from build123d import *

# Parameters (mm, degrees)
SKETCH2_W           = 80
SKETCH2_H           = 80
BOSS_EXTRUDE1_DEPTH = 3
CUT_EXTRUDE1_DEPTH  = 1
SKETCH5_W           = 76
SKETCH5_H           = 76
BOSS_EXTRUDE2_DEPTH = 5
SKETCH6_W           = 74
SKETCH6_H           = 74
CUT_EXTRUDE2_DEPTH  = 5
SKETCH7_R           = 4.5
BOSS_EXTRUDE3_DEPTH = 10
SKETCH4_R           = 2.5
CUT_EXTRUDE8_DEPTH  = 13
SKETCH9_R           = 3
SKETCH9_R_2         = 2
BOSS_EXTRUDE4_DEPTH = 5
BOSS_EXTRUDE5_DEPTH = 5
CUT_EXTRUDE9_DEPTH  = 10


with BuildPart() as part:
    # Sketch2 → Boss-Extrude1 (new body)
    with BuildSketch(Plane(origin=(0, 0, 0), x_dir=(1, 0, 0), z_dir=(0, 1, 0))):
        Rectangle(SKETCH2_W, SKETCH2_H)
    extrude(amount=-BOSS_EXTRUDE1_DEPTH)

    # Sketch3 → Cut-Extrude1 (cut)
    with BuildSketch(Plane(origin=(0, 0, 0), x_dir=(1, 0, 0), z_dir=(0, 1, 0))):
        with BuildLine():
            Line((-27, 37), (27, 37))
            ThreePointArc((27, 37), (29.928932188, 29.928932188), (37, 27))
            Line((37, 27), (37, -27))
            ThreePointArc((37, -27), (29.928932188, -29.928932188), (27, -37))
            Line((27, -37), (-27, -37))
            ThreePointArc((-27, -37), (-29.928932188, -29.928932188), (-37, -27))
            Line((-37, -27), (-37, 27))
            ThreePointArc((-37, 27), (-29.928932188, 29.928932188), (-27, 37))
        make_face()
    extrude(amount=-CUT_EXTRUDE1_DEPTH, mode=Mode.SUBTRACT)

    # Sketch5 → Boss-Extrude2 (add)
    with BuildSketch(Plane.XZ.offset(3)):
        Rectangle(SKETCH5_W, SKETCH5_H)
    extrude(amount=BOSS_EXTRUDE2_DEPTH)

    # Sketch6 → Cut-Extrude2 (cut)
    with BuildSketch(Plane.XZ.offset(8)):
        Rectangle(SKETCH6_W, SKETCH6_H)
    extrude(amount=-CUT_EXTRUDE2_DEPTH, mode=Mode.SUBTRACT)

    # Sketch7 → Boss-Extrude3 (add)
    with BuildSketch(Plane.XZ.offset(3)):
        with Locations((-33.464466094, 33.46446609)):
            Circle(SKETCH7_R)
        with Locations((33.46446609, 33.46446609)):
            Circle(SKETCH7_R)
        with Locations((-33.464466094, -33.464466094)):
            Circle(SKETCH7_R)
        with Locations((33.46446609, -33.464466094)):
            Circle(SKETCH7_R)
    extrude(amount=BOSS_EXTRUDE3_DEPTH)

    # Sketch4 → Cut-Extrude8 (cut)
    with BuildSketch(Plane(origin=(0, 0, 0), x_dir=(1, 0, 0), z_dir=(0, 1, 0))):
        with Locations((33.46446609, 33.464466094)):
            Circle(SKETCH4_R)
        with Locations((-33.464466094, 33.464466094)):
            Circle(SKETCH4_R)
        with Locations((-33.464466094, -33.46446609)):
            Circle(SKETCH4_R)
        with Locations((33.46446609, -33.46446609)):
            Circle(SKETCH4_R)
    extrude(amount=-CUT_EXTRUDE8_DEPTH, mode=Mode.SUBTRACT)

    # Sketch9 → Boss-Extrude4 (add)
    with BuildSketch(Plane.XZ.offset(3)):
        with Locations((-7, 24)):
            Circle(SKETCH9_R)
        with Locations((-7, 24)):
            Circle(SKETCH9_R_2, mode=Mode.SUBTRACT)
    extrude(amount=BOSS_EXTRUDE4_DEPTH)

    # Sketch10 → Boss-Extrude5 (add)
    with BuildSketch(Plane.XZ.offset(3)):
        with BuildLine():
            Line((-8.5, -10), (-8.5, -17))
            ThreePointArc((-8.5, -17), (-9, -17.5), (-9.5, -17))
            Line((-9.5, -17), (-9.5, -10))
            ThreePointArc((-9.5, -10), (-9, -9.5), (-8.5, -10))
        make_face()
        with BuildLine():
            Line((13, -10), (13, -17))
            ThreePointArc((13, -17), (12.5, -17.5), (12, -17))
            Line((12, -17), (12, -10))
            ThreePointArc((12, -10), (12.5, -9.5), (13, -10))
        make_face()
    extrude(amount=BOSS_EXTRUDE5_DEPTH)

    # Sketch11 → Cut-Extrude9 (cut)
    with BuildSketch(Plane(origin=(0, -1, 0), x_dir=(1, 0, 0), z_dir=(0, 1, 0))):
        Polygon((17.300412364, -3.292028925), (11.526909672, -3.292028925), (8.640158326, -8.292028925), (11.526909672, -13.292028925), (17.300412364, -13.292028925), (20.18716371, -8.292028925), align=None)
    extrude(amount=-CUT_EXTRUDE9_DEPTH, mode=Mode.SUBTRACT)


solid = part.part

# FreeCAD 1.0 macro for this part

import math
import FreeCAD as App
import Part
import Sketcher
from FreeCAD import Vector
Q = App.Units.Quantity

doc = App.newDocument("Part")
body = doc.addObject("PartDesign::Body", "Body")

sketch1 = body.newObject("Sketcher::SketchObject", "Sketch")
sketch1.AttachmentSupport = (doc.getObject("XZ_Plane"), [""])
sketch1.MapMode = "FlatFace"
sketch1.addGeometry([
    Part.LineSegment(Vector(-40, -40, 0), Vector(-40, 40, 0)),
    Part.LineSegment(Vector(-40, 40, 0), Vector(40, 40, 0)),
    Part.LineSegment(Vector(40, 40, 0), Vector(40, -40, 0)),
    Part.LineSegment(Vector(40, -40, 0), Vector(-40, -40, 0)),
], False)
sketch1.addConstraint([
    Sketcher.Constraint("Coincident", 0, 2, 1, 1),
    Sketcher.Constraint("Coincident", 1, 2, 2, 1),
    Sketcher.Constraint("Coincident", 2, 2, 3, 1),
    Sketcher.Constraint("Coincident", 3, 2, 0, 1),
    Sketcher.Constraint("Vertical", 0),
    Sketcher.Constraint("Horizontal", 1),
    Sketcher.Constraint("Vertical", 2),
    Sketcher.Constraint("Horizontal", 3),
    Sketcher.Constraint("Symmetric", 0, 2, 2, 2, -1, 1),
    Sketcher.Constraint("Equal", 3, 0),
    Sketcher.Constraint("DistanceX", 1, 1, 1, 2, Q("80 mm")),
])
pad1 = body.newObject("PartDesign::Pad", "Pad")
pad1.Profile = sketch1
pad1.Length = 3

sketch2 = body.newObject("Sketcher::SketchObject", "Sketch001")
sketch2.AttachmentSupport = (doc.getObject("XZ_Plane"), [""])
sketch2.MapMode = "FlatFace"
sketch2.addGeometry([
    Part.LineSegment(Vector(27, -37, 0), Vector(-27, -37, 0)),
    Part.ArcOfCircle(Part.Circle(Vector(-37, -37, 0), Vector(0, 0, 1), 10), math.radians(0), math.radians(90)),
    Part.LineSegment(Vector(-37, -27, 0), Vector(-37, 27, 0)),
    Part.ArcOfCircle(Part.Circle(Vector(-37, 37, 0), Vector(0, 0, 1), 10), math.radians(-90), math.radians(0)),
    Part.LineSegment(Vector(-27, 37, 0), Vector(27, 37, 0)),
    Part.ArcOfCircle(Part.Circle(Vector(37, 37, 0), Vector(0, 0, 1), 10), math.radians(180), math.radians(270)),
    Part.LineSegment(Vector(37, 27, 0), Vector(37, -27, 0)),
    Part.ArcOfCircle(Part.Circle(Vector(37, -37, 0), Vector(0, 0, 1), 10), math.radians(90), math.radians(180)),
], False)
sketch2.addConstraint([
    Sketcher.Constraint("Coincident", 0, 2, 1, 1),
    Sketcher.Constraint("Coincident", 1, 2, 2, 1),
    Sketcher.Constraint("Coincident", 2, 2, 3, 1),
    Sketcher.Constraint("Coincident", 3, 2, 4, 1),
    Sketcher.Constraint("Coincident", 4, 2, 5, 1),
    Sketcher.Constraint("Coincident", 5, 2, 6, 1),
    Sketcher.Constraint("Coincident", 6, 2, 7, 1),
    Sketcher.Constraint("Coincident", 7, 2, 0, 1),
    Sketcher.Constraint("Horizontal", 0),
    Sketcher.Constraint("Vertical", 2),
    Sketcher.Constraint("Horizontal", 4),
    Sketcher.Constraint("Vertical", 6),
    Sketcher.Constraint("Equal", 1, 3),
    Sketcher.Constraint("Equal", 3, 5),
    Sketcher.Constraint("Equal", 5, 7),
    Sketcher.Constraint("Symmetric", 1, 3, 5, 3, -1, 1),
    Sketcher.Constraint("Symmetric", 3, 3, 7, 3, -1, 1),
    Sketcher.Constraint("Symmetric", 3, 3, 5, 3, -2),
    Sketcher.Constraint("Horizontal", 7, 3, 0, 2),
    Sketcher.Constraint("Horizontal", 5, 3, 3, 2),
    Sketcher.Constraint("Vertical", 3, 3, 1, 2),
    Sketcher.Constraint("Vertical", 7, 3, 5, 2),
    Sketcher.Constraint("Equal", 4, 2),
    Sketcher.Constraint("Radius", 1, Q("10 mm")),
    Sketcher.Constraint("DistanceX", 0, 2, 0, 1, Q("54 mm")),
])
pocket1 = body.newObject("PartDesign::Pocket", "Pocket")
pocket1.Profile = sketch2
pocket1.Length = 1
pocket1.Reversed = True

sketch3 = body.newObject("Sketcher::SketchObject", "Sketch002")
sketch3.AttachmentSupport = (doc.getObject("XZ_Plane"), [""])
sketch3.MapMode = "FlatFace"
sketch3.AttachmentOffset = App.Placement(Vector(0, 0, 3), App.Rotation())
sketch3.addGeometry([
    Part.LineSegment(Vector(-38, 38, 0), Vector(-38, -38, 0)),
    Part.LineSegment(Vector(-38, -38, 0), Vector(38, -38, 0)),
    Part.LineSegment(Vector(38, -38, 0), Vector(38, 38, 0)),
    Part.LineSegment(Vector(38, 38, 0), Vector(-38, 38, 0)),
], False)
sketch3.addConstraint([
    Sketcher.Constraint("Coincident", 0, 2, 1, 1),
    Sketcher.Constraint("Coincident", 1, 2, 2, 1),
    Sketcher.Constraint("Coincident", 2, 2, 3, 1),
    Sketcher.Constraint("Coincident", 3, 2, 0, 1),
    Sketcher.Constraint("Vertical", 0),
    Sketcher.Constraint("Horizontal", 1),
    Sketcher.Constraint("Vertical", 2),
    Sketcher.Constraint("Horizontal", 3),
    Sketcher.Constraint("Symmetric", 0, 2, 2, 2, -1, 1),
    Sketcher.Constraint("Equal", 3, 0),
    Sketcher.Constraint("DistanceX", 1, 1, 1, 2, Q("76 mm")),
])
pad2 = body.newObject("PartDesign::Pad", "Pad001")
pad2.Profile = sketch3
pad2.Length = 5

sketch4 = body.newObject("Sketcher::SketchObject", "Sketch003")
sketch4.AttachmentSupport = (doc.getObject("XZ_Plane"), [""])
sketch4.MapMode = "FlatFace"
sketch4.AttachmentOffset = App.Placement(Vector(0, 0, 8), App.Rotation())
sketch4.addGeometry([
    Part.LineSegment(Vector(-37, 37, 0), Vector(-37, -37, 0)),
    Part.LineSegment(Vector(-37, -37, 0), Vector(37, -37, 0)),
    Part.LineSegment(Vector(37, -37, 0), Vector(37, 37, 0)),
    Part.LineSegment(Vector(37, 37, 0), Vector(-37, 37, 0)),
], False)
sketch4.addConstraint([
    Sketcher.Constraint("Coincident", 0, 2, 1, 1),
    Sketcher.Constraint("Coincident", 1, 2, 2, 1),
    Sketcher.Constraint("Coincident", 2, 2, 3, 1),
    Sketcher.Constraint("Coincident", 3, 2, 0, 1),
    Sketcher.Constraint("Vertical", 0),
    Sketcher.Constraint("Horizontal", 1),
    Sketcher.Constraint("Vertical", 2),
    Sketcher.Constraint("Horizontal", 3),
    Sketcher.Constraint("Symmetric", 0, 2, 2, 2, -1, 1),
    Sketcher.Constraint("Equal", 3, 0),
    Sketcher.Constraint("DistanceX", 1, 1, 1, 2, Q("74 mm")),
])
pocket2 = body.newObject("PartDesign::Pocket", "Pocket001")
pocket2.Profile = sketch4
pocket2.Length = 5

sketch5 = body.newObject("Sketcher::SketchObject", "Sketch004")
sketch5.AttachmentSupport = (doc.getObject("XZ_Plane"), [""])
sketch5.MapMode = "FlatFace"
sketch5.AttachmentOffset = App.Placement(Vector(0, 0, 3), App.Rotation())
sketch5.addGeometry([
    Part.Circle(Vector(-33.5, 33.5, 0), Vector(0, 0, 1), 4.5),
    Part.Circle(Vector(33.5, 33.5, 0), Vector(0, 0, 1), 4.5),
    Part.Circle(Vector(-33.5, -33.5, 0), Vector(0, 0, 1), 4.5),
    Part.Circle(Vector(33.5, -33.5, 0), Vector(0, 0, 1), 4.5),
], False)
sketch5.addConstraint([
    Sketcher.Constraint("Equal", 0, 1),
    Sketcher.Constraint("Equal", 1, 2),
    Sketcher.Constraint("Equal", 2, 3),
    Sketcher.Constraint("Symmetric", 1, 3, 2, 3, -1, 1),
    Sketcher.Constraint("Symmetric", 0, 3, 3, 3, -1, 1),
    Sketcher.Constraint("Symmetric", 0, 3, 1, 3, -2),
    Sketcher.Constraint("Diameter", 0, Q("9 mm")),
    Sketcher.Constraint("DistanceX", 0, 3, -1, 1, Q("33.464466 mm")),
    Sketcher.Constraint("DistanceY", -1, 1, 0, 3, Q("33.464466 mm")),
])
pad3 = body.newObject("PartDesign::Pad", "Pad002")
pad3.Profile = sketch5
pad3.Length = 10

sketch6 = body.newObject("Sketcher::SketchObject", "Sketch005")
sketch6.AttachmentSupport = (doc.getObject("XZ_Plane"), [""])
sketch6.MapMode = "FlatFace"
sketch6.addGeometry([
    Part.Circle(Vector(33.5, -33.5, 0), Vector(0, 0, 1), 2.5),
    Part.Circle(Vector(-33.5, -33.5, 0), Vector(0, 0, 1), 2.5),
    Part.Circle(Vector(-33.5, 33.5, 0), Vector(0, 0, 1), 2.5),
    Part.Circle(Vector(33.5, 33.5, 0), Vector(0, 0, 1), 2.5),
], False)
sketch6.addConstraint([
    Sketcher.Constraint("Equal", 0, 1),
    Sketcher.Constraint("Equal", 1, 2),
    Sketcher.Constraint("Equal", 2, 3),
    Sketcher.Constraint("Symmetric", 0, 3, 2, 3, -1, 1),
    Sketcher.Constraint("Symmetric", 1, 3, 3, 3, -1, 1),
    Sketcher.Constraint("Symmetric", 0, 3, 1, 3, -2),
    Sketcher.Constraint("Diameter", 0, Q("5 mm")),
    Sketcher.Constraint("DistanceX", -1, 1, 0, 3, Q("33.464466 mm")),
    Sketcher.Constraint("DistanceY", 0, 3, -1, 1, Q("33.464466 mm")),
])
pocket3 = body.newObject("PartDesign::Pocket", "Pocket002")
pocket3.Profile = sketch6
pocket3.Length = 13
pocket3.Reversed = True

sketch7 = body.newObject("Sketcher::SketchObject", "Sketch006")
sketch7.AttachmentSupport = (doc.getObject("XZ_Plane"), [""])
sketch7.MapMode = "FlatFace"
sketch7.AttachmentOffset = App.Placement(Vector(0, 0, 3), App.Rotation())
sketch7.addGeometry([
    Part.Circle(Vector(-7, 24, 0), Vector(0, 0, 1), 3),
    Part.Circle(Vector(-7, 24, 0), Vector(0, 0, 1), 2),
], False)
sketch7.addConstraint([
    Sketcher.Constraint("Coincident", 1, 3, 0, 3),
    Sketcher.Constraint("Diameter", 0, Q("6 mm")),
    Sketcher.Constraint("Diameter", 1, Q("4 mm")),
    Sketcher.Constraint("DistanceX", 0, 3, -1, 1, Q("7 mm")),
    Sketcher.Constraint("DistanceY", -1, 1, 0, 3, Q("24 mm")),
])
pad4 = body.newObject("PartDesign::Pad", "Pad003")
pad4.Profile = sketch7
pad4.Length = 5

sketch8 = body.newObject("Sketcher::SketchObject", "Sketch007")
sketch8.AttachmentSupport = (doc.getObject("XZ_Plane"), [""])
sketch8.MapMode = "FlatFace"
sketch8.AttachmentOffset = App.Placement(Vector(0, 0, 3), App.Rotation())
sketch8.addGeometry([
    Part.LineSegment(Vector(-8.5, -17, 0), Vector(-8.5, -10, 0)),
    Part.ArcOfCircle(Part.Circle(Vector(-9, -10, 0), Vector(0, 0, 1), 0.5), math.radians(0), math.radians(180)),
    Part.LineSegment(Vector(-9.5, -10, 0), Vector(-9.5, -17, 0)),
    Part.ArcOfCircle(Part.Circle(Vector(-9, -17, 0), Vector(0, 0, 1), 0.5), math.radians(180), math.radians(360)),
    Part.LineSegment(Vector(13, -17, 0), Vector(13, -10, 0)),
    Part.ArcOfCircle(Part.Circle(Vector(12.5, -10, 0), Vector(0, 0, 1), 0.5), math.radians(0), math.radians(180)),
    Part.LineSegment(Vector(12, -10, 0), Vector(12, -17, 0)),
    Part.ArcOfCircle(Part.Circle(Vector(12.5, -17, 0), Vector(0, 0, 1), 0.5), math.radians(180), math.radians(360)),
], False)
sketch8.addConstraint([
    Sketcher.Constraint("Tangent", 0, 2, 1, 1),
    Sketcher.Constraint("Tangent", 1, 2, 2, 1),
    Sketcher.Constraint("Tangent", 2, 2, 3, 1),
    Sketcher.Constraint("Tangent", 3, 2, 0, 1),
    Sketcher.Constraint("Tangent", 4, 2, 5, 1),
    Sketcher.Constraint("Tangent", 5, 2, 6, 1),
    Sketcher.Constraint("Tangent", 6, 2, 7, 1),
    Sketcher.Constraint("Tangent", 7, 2, 4, 1),
    Sketcher.Constraint("Vertical", 0),
    Sketcher.Constraint("Vertical", 2),
    Sketcher.Constraint("Vertical", 4),
    Sketcher.Constraint("Vertical", 6),
    Sketcher.Constraint("Equal", 3, 5),
    Sketcher.Constraint("Horizontal", 1, 3, 5, 3),
    Sketcher.Constraint("Horizontal", 3, 3, 7, 3),
    Sketcher.Constraint("Radius", 1, Q("0.5 mm")),
    Sketcher.Constraint("DistanceY", 0, 1, 0, 2, Q("7 mm")),
    Sketcher.Constraint("DistanceX", 1, 3, -1, 1, Q("9 mm")),
    Sketcher.Constraint("DistanceY", 1, 3, -1, 1, Q("10 mm")),
    Sketcher.Constraint("DistanceX", -1, 1, 4, 2, Q("13 mm")),
])
pad5 = body.newObject("PartDesign::Pad", "Pad004")
pad5.Profile = sketch8
pad5.Length = 5

sketch9 = body.newObject("Sketcher::SketchObject", "Sketch008")
sketch9.AttachmentSupport = (doc.getObject("XZ_Plane"), [""])
sketch9.MapMode = "FlatFace"
sketch9.AttachmentOffset = App.Placement(Vector(0, 0, 1), App.Rotation())
sketch9.addGeometry([
    Part.LineSegment(Vector(17, 3, 0), Vector(12, 3, 0)),
    Part.LineSegment(Vector(12, 3, 0), Vector(9, 8, 0)),
    Part.LineSegment(Vector(9, 8, 0), Vector(12, 13, 0)),
    Part.LineSegment(Vector(12, 13, 0), Vector(17, 13, 0)),
    Part.LineSegment(Vector(17, 13, 0), Vector(20, 8, 0)),
    Part.LineSegment(Vector(20, 8, 0), Vector(17, 3, 0)),
], False)
sketch9.addConstraint([
    Sketcher.Constraint("Coincident", 0, 2, 1, 1),
    Sketcher.Constraint("Coincident", 1, 2, 2, 1),
    Sketcher.Constraint("Coincident", 2, 2, 3, 1),
    Sketcher.Constraint("Coincident", 3, 2, 4, 1),
    Sketcher.Constraint("Coincident", 4, 2, 5, 1),
    Sketcher.Constraint("Coincident", 5, 2, 0, 1),
    Sketcher.Constraint("Horizontal", 0),
    Sketcher.Constraint("Horizontal", 3),
    Sketcher.Constraint("Parallel", 1, 4),
    Sketcher.Constraint("Parallel", 2, 5),
    Sketcher.Constraint("Horizontal", 1, 2, 4, 2),
    Sketcher.Constraint("Vertical", 0, 2, 2, 2),
    Sketcher.Constraint("Vertical", 3, 2, 5, 2),
    Sketcher.Constraint("Angle", 1, Q("120 deg")),
    Sketcher.Constraint("DistanceY", 0, 2, 1, 2, Q("5 mm")),
    Sketcher.Constraint("DistanceX", 0, 2, 0, 1, Q("5.773503 mm")),
    Sketcher.Constraint("DistanceX", -1, 1, 0, 2, Q("11.52691 mm")),
    Sketcher.Constraint("DistanceY", -1, 1, 0, 2, Q("3.292029 mm")),
])
pocket4 = body.newObject("PartDesign::Pocket", "Pocket003")
pocket4.Profile = sketch9
pocket4.Length = 10
pocket4.Reversed = True

doc.recompute()
